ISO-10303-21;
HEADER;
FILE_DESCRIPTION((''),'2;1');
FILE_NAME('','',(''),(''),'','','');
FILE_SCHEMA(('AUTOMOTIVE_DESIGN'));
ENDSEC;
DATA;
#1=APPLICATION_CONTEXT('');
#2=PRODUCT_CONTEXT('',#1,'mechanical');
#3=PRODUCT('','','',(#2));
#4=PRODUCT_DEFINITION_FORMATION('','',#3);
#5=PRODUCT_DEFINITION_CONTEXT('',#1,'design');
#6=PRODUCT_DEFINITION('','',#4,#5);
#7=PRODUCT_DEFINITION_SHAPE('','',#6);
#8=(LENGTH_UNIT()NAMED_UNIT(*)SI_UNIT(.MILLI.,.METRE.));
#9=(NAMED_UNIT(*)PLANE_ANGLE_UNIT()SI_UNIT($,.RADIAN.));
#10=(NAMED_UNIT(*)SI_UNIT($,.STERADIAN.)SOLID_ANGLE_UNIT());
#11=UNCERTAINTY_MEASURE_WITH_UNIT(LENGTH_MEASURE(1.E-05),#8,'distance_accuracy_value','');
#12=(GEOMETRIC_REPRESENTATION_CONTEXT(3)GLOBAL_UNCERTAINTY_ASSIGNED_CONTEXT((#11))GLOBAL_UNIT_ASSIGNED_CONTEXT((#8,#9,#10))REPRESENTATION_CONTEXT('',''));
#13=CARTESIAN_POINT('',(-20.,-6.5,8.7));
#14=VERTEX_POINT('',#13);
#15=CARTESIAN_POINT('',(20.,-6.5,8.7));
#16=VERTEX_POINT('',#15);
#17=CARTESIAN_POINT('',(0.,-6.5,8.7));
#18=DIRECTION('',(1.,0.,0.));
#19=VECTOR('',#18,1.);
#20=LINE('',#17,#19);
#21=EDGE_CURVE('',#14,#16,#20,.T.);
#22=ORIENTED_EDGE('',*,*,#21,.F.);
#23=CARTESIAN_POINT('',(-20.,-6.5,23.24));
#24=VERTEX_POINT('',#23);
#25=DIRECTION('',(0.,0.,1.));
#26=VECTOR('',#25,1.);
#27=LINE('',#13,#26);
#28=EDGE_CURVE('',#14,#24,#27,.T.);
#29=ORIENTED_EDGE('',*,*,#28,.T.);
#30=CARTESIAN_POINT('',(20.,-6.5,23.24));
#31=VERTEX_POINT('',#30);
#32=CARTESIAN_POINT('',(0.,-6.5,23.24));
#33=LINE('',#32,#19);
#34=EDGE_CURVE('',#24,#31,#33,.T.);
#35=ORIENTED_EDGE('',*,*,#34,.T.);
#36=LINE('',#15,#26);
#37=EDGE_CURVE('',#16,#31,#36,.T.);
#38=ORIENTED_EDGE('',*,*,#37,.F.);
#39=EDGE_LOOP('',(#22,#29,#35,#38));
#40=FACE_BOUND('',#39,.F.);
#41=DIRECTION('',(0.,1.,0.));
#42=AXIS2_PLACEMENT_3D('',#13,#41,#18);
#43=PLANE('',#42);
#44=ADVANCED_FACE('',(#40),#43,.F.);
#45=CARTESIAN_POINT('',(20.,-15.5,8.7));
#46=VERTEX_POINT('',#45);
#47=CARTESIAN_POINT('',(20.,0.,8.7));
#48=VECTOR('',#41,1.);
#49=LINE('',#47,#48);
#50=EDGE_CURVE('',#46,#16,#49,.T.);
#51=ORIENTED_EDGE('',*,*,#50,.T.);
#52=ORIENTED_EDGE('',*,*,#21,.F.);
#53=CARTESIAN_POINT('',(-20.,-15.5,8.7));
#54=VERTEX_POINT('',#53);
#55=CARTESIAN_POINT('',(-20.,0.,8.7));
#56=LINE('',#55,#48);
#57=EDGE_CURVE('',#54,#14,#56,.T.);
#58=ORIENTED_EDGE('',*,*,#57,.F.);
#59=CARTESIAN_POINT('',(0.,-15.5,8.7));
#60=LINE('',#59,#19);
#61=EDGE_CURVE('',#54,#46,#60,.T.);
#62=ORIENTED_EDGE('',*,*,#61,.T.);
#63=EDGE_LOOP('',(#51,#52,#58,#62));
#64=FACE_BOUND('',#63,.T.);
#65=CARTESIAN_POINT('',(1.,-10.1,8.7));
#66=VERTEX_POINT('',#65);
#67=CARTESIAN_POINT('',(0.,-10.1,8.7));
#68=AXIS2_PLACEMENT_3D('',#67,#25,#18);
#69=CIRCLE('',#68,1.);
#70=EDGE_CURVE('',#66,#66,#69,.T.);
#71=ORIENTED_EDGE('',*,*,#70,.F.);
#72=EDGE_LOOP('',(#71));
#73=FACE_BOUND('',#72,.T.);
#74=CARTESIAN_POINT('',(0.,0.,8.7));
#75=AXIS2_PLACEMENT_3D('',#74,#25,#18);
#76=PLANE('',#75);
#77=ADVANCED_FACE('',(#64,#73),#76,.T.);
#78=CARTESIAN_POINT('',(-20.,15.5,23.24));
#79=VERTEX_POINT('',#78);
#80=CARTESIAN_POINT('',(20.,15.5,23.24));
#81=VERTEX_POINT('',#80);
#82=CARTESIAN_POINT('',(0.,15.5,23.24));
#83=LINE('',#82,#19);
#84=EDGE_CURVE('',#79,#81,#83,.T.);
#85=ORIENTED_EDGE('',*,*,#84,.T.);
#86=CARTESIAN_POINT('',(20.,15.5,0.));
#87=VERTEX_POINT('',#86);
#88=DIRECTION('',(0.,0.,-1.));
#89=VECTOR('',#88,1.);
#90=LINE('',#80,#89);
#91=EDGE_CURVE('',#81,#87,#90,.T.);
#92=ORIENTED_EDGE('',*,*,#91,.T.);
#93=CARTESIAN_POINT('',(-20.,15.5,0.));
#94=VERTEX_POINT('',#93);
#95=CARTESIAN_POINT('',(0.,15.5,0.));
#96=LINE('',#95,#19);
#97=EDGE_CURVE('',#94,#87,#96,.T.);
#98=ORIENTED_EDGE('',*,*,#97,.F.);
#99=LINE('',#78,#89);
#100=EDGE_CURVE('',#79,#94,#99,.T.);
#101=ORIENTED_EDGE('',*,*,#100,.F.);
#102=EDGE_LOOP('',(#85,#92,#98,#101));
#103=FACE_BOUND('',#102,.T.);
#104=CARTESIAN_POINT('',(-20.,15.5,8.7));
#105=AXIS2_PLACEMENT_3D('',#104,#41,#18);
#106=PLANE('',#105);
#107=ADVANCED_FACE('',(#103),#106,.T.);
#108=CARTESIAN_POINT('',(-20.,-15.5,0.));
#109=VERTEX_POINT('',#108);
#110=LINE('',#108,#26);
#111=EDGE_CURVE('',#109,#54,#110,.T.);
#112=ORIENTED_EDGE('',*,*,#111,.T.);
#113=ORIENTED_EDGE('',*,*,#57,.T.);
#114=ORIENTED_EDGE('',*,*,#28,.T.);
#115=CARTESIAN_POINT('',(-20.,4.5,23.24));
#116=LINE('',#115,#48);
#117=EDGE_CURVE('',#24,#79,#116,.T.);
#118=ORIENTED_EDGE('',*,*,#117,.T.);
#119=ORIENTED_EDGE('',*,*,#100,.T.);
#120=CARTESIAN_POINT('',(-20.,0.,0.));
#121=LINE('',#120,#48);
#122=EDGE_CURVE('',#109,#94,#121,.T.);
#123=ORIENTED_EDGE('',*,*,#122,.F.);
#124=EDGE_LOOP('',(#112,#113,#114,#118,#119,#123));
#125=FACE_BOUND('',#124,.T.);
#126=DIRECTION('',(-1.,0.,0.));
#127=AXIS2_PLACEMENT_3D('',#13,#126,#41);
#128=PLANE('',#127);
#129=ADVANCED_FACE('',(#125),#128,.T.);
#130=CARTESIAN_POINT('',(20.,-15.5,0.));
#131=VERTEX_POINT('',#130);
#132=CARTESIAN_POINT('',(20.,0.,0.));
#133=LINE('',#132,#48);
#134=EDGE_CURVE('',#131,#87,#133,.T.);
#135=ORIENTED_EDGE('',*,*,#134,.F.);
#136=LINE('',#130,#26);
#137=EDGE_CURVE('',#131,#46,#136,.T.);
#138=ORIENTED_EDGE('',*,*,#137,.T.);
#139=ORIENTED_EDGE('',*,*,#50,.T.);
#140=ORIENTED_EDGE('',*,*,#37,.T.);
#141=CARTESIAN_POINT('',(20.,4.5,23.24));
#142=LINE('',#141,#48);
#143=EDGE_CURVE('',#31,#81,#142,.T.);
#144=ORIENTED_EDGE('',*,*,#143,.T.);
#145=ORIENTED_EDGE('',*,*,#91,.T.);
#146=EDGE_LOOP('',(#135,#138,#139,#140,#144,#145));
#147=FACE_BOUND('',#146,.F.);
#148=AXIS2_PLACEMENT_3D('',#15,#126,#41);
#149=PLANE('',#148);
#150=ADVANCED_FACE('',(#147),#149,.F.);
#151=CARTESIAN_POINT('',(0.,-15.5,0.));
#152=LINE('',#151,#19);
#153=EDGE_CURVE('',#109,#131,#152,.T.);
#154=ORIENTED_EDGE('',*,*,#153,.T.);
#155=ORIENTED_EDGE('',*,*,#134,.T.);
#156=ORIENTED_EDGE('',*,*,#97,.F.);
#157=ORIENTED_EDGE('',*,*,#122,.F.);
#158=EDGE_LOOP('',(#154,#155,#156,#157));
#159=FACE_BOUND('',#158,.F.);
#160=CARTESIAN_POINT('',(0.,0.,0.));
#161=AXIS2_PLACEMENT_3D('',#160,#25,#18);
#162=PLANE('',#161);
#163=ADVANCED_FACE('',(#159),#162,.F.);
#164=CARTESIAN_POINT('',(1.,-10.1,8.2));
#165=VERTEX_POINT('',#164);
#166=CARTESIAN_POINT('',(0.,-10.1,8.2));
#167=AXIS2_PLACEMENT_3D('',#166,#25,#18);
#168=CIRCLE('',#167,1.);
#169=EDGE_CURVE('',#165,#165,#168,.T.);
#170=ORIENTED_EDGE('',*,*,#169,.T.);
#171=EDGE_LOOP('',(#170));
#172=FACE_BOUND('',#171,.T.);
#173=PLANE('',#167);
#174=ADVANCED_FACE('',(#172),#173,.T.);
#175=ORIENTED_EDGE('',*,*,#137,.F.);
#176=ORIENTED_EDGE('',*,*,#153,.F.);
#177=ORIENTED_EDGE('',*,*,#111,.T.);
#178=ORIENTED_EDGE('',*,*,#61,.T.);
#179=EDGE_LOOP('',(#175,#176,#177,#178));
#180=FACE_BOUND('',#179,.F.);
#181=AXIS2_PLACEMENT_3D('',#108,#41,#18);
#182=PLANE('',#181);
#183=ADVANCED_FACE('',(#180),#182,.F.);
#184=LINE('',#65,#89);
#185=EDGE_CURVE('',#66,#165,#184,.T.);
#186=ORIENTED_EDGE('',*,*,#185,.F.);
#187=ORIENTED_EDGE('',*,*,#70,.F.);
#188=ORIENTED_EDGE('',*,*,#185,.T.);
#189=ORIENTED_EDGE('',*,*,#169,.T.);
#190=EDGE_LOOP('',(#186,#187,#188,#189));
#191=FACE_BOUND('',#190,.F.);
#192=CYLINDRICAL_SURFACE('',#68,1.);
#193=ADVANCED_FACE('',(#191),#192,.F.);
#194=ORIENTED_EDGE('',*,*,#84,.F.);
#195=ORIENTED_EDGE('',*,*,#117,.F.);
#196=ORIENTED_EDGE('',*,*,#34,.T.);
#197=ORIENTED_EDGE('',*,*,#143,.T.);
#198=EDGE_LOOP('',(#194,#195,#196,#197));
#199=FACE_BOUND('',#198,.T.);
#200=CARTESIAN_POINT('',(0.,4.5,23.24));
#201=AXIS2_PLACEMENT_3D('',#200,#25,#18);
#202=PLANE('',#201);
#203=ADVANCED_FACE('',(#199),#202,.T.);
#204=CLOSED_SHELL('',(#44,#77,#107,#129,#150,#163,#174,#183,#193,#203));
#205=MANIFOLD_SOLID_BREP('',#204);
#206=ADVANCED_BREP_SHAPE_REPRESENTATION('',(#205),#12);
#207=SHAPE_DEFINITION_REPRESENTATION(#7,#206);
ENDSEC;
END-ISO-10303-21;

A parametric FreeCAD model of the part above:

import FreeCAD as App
import Part
import Sketcher
from FreeCAD import Vector
Q = App.Units.Quantity


def add_polygon(sketch, points):
    """Adds a closed chain of lines whose ends are joined by coincident constraints."""
    first, n = sketch.GeometryCount, len(points)
    for a, b in zip(points, points[1:] + points[:1]):
        sketch.addGeometry(Part.LineSegment(App.Vector(*a, 0), App.Vector(*b, 0)), False)
    for i in range(n):
        sketch.addConstraint(Sketcher.Constraint("Coincident", first + i, 2, first + (i + 1) % n, 1))

doc = App.newDocument("Part")
body = doc.addObject("PartDesign::Body", "Body")

sketch1 = doc.addObject("Sketcher::SketchObject", "Sketch")
body.addObject(sketch1)
sketch1.AttachmentSupport = (doc.XY_Plane, [""])
sketch1.MapMode = "FlatFace"
add_polygon(sketch1, [(-20, 15.5), (-20, -15.5), (20, -15.5), (20, 15.5)])
sketch1.addConstraint(Sketcher.Constraint("Vertical", 0))
sketch1.addConstraint(Sketcher.Constraint("Horizontal", 1))
sketch1.addConstraint(Sketcher.Constraint("Vertical", 2))
sketch1.addConstraint(Sketcher.Constraint("Horizontal", 3))
sketch1.addConstraint(Sketcher.Constraint("Symmetric", 0, 2, 2, 2, -1, 1))
sketch1.addConstraint(Sketcher.Constraint("DistanceX", 1, 1, 1, 2, Q("40 mm")))
sketch1.addConstraint(Sketcher.Constraint("DistanceY", 0, 2, 0, 1, Q("31 mm")))
pad1 = doc.addObject("PartDesign::Pad", "Pad")
body.addObject(pad1)
pad1.Profile = sketch1
pad1.Length = 8.7

sketch2 = doc.addObject("Sketcher::SketchObject", "Sketch001")
body.addObject(sketch2)
sketch2.AttachmentSupport = (doc.XY_Plane, [""])
sketch2.MapMode = "FlatFace"
sketch2.AttachmentOffset = App.Placement(Vector(0, 0, 8.7), App.Rotation())
add_polygon(sketch2, [(-20, 15.5), (-20, -6.5), (20, -6.5), (20, 15.5)])
sketch2.addConstraint(Sketcher.Constraint("Vertical", 0))
sketch2.addConstraint(Sketcher.Constraint("Horizontal", 1))
sketch2.addConstraint(Sketcher.Constraint("Vertical", 2))
sketch2.addConstraint(Sketcher.Constraint("Horizontal", 3))
sketch2.addConstraint(Sketcher.Constraint("DistanceX", 1, 1, 1, 2, Q("40 mm")))
sketch2.addConstraint(Sketcher.Constraint("DistanceY", 0, 2, 0, 1, Q("22 mm")))
sketch2.addConstraint(Sketcher.Constraint("DistanceX", 0, 2, -1, 1, Q("20 mm")))
sketch2.addConstraint(Sketcher.Constraint("DistanceY", 0, 2, -1, 1, Q("6.5 mm")))
pad2 = doc.addObject("PartDesign::Pad", "Pad001")
body.addObject(pad2)
pad2.Profile = sketch2
pad2.Length = 14.54

sketch3 = doc.addObject("Sketcher::SketchObject", "Sketch002")
body.addObject(sketch3)
sketch3.AttachmentSupport = (doc.XY_Plane, [""])
sketch3.MapMode = "FlatFace"
sketch3.AttachmentOffset = App.Placement(Vector(0, 0, 8.7), App.Rotation())
sketch3.addGeometry(Part.Circle(Vector(0, -10.1, 0), Vector(0, 0, 1), 1), False)
sketch3.addConstraint(Sketcher.Constraint("PointOnObject", 0, 3, -2))
sketch3.addConstraint(Sketcher.Constraint("Diameter", 0, Q("2 mm")))
sketch3.addConstraint(Sketcher.Constraint("DistanceY", 0, 3, -1, 1, Q("10.1 mm")))
pocket1 = doc.addObject("PartDesign::Pocket", "Pocket")
body.addObject(pocket1)
pocket1.Profile = sketch3
pocket1.Length = 0.5

doc.recompute()
